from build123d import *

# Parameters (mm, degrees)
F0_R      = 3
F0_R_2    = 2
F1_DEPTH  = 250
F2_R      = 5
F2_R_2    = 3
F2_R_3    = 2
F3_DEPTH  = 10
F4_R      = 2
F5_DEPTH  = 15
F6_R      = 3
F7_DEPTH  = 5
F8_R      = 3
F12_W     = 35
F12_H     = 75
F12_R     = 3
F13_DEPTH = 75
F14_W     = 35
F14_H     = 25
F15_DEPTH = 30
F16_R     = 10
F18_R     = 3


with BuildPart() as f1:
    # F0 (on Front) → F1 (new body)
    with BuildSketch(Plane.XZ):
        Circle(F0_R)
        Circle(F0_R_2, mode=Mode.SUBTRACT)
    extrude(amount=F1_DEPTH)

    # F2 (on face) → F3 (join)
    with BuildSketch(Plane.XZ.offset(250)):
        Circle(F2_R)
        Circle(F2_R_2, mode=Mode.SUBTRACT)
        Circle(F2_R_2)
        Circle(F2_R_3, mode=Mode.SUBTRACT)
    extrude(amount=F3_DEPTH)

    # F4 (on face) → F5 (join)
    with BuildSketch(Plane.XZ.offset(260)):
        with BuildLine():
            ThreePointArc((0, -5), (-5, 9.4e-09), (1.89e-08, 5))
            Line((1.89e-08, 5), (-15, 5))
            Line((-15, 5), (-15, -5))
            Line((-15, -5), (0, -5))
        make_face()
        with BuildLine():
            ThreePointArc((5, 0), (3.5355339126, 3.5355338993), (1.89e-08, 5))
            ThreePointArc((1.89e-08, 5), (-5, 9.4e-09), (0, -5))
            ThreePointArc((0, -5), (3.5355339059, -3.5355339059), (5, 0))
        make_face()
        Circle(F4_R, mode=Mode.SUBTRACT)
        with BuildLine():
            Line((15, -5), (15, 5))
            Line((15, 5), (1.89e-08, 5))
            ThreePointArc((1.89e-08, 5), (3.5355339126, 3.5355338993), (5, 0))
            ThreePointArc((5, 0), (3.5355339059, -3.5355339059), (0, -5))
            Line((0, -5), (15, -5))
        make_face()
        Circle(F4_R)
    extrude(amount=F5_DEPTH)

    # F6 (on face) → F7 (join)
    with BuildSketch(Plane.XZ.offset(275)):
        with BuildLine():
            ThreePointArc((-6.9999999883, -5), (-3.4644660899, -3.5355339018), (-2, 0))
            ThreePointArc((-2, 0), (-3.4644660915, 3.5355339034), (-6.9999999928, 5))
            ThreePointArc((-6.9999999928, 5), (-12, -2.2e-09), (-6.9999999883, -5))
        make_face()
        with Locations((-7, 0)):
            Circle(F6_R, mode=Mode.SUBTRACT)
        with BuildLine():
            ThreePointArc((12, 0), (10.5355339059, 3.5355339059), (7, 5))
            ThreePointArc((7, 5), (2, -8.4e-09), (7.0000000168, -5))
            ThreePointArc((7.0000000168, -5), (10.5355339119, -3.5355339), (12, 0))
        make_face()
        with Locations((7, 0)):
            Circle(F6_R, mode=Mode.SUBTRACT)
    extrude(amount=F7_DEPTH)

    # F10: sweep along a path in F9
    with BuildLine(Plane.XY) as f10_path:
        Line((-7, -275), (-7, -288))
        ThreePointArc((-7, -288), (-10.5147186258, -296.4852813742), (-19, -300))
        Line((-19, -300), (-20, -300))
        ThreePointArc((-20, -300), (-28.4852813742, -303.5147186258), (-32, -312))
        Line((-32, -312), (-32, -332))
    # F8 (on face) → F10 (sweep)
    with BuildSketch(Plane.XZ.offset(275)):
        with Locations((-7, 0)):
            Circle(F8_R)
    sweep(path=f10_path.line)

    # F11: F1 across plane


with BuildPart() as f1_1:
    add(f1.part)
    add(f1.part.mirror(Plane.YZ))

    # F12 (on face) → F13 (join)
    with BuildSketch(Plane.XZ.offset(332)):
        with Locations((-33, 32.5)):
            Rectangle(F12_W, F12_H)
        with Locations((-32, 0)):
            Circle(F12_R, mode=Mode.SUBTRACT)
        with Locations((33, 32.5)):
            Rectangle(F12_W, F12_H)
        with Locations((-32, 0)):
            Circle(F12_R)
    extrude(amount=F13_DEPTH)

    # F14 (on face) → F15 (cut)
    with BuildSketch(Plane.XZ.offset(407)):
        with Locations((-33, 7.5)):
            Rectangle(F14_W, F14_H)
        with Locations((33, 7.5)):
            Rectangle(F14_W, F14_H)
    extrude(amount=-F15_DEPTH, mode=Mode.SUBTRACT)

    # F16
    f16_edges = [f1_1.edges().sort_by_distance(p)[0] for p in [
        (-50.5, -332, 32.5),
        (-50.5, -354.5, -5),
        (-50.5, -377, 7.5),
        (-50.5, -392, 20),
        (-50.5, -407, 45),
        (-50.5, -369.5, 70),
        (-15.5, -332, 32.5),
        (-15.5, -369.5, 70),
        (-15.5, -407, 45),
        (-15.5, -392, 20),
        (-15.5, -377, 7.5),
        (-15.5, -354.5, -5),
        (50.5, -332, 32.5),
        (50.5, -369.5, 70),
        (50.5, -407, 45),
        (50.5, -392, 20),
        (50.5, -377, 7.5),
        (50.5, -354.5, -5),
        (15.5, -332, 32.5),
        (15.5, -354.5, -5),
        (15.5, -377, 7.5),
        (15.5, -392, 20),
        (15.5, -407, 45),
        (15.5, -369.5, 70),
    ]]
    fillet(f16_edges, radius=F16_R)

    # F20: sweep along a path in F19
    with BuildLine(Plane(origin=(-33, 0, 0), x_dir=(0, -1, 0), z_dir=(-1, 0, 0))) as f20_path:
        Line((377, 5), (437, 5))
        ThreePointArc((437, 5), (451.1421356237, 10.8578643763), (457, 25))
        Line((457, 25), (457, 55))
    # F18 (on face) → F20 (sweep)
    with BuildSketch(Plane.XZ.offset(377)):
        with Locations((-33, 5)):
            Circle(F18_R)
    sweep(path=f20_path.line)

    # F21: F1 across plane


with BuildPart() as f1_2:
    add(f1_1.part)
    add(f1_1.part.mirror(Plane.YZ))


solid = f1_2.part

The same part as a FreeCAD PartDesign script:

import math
import FreeCAD as App
import Part
import Sketcher
from FreeCAD import Vector
Q = App.Units.Quantity


def edges_at(feature, points):
    """Names of the edges that pass closest to the given points."""
    edges = feature.Shape.Edges
    near = lambda p: min(range(len(edges)), key=lambda i: edges[i].distToShape(Part.Vertex(*p))[0])
    return sorted({f"Edge{near(p) + 1}" for p in points})


def add_polygon(sketch, points):
    """Adds a closed chain of lines whose ends are joined by coincident constraints."""
    first, n = sketch.GeometryCount, len(points)
    for a, b in zip(points, points[1:] + points[:1]):
        sketch.addGeometry(Part.LineSegment(App.Vector(*a, 0), App.Vector(*b, 0)), False)
    for i in range(n):
        sketch.addConstraint(Sketcher.Constraint("Coincident", first + i, 2, first + (i + 1) % n, 1))

doc = App.newDocument("Part")
params = doc.addObject("Spreadsheet::Sheet", "Params")
for row, (alias, value) in enumerate([
    ("sketch1_diameter", "6 mm"),
    ("sketch1_diameter2", "4 mm"),
    ("pad1_length", "250 mm"),
    ("sketch2_diameter", "10 mm"),
    ("sketch2_diameter2", "4 mm"),
    ("pad2_length", "10 mm"),
    ("sketch3_width", "30 mm"),
    ("sketch3_height", "10 mm"),
    ("pad3_length", "15 mm"),
    ("sketch4_diameter", "6 mm"),
    ("sketch4_radius", "5 mm"),
    ("pad4_length", "5 mm"),
    ("sketch5_diameter", "6 mm"),
    ("sketch6_radius", "12 mm"),
    ("sketch6_width", "1 mm"),
    ("sketch6_height", "13 mm"),
    ("sketch6_height2", "20 mm"),
    ("sketch7_width", "35 mm"),
    ("sketch7_height", "75 mm"),
    ("pad5_length", "75 mm"),
    ("sketch8_width", "35 mm"),
    ("sketch8_height", "25 mm"),
    ("pocket1_length", "30 mm"),
    ("fillet_radius", "10 mm"),
    ("sketch9_diameter", "6 mm"),
    ("sketch10_radius", "20 mm"),
    ("sketch10_width", "60 mm"),
    ("sketch10_height", "30 mm"),
], start=1):
    params.set(f"A{row}", alias)
    params.set(f"B{row}", "=" + value)
    params.setAlias(f"B{row}", alias)

body = doc.addObject("PartDesign::Body", "Body")

sketch1 = body.newObject("Sketcher::SketchObject", "Sketch")
sketch1.AttachmentSupport = (doc.getObject("XZ_Plane"), [""])
sketch1.MapMode = "FlatFace"
sketch1.addGeometry([
    Part.Circle(Vector(0, 0, 0), Vector(0, 0, 1), 3),
    Part.Circle(Vector(0, 0, 0), Vector(0, 0, 1), 2),
], False)
sketch1.addConstraint([
    Sketcher.Constraint("Coincident", 0, 3, -1, 1),
    Sketcher.Constraint("Coincident", 1, 3, -1, 1),
    Sketcher.Constraint("Diameter", 0, Q("6 mm")),
    Sketcher.Constraint("Diameter", 1, Q("4 mm")),
])
sketch1.setExpression("Constraints[2]", "Params.sketch1_diameter")
sketch1.setExpression("Constraints[3]", "Params.sketch1_diameter2")
pad1 = body.newObject("PartDesign::Pad", "Pad")
pad1.Profile = sketch1
pad1.setExpression("Length", "Params.pad1_length")

sketch2 = body.newObject("Sketcher::SketchObject", "Sketch001")
sketch2.AttachmentSupport = (doc.getObject("XZ_Plane"), [""])
sketch2.MapMode = "FlatFace"
sketch2.AttachmentOffset = App.Placement(Vector(0, 0, 250), App.Rotation())
sketch2.addGeometry([
    Part.Circle(Vector(0, 0, 0), Vector(0, 0, 1), 5),
    Part.Circle(Vector(0, 0, 0), Vector(0, 0, 1), 2),
], False)
sketch2.addConstraint([
    Sketcher.Constraint("Coincident", 0, 3, -1, 1),
    Sketcher.Constraint("Coincident", 1, 3, -1, 1),
    Sketcher.Constraint("Diameter", 0, Q("10 mm")),
    Sketcher.Constraint("Diameter", 1, Q("4 mm")),
])
sketch2.setExpression("Constraints[2]", "Params.sketch2_diameter")
sketch2.setExpression("Constraints[3]", "Params.sketch2_diameter2")
pad2 = body.newObject("PartDesign::Pad", "Pad001")
pad2.Profile = sketch2
pad2.setExpression("Length", "Params.pad2_length")

sketch3 = body.newObject("Sketcher::SketchObject", "Sketch002")
sketch3.AttachmentSupport = (doc.getObject("XZ_Plane"), [""])
sketch3.MapMode = "FlatFace"
sketch3.AttachmentOffset = App.Placement(Vector(0, 0, 260), App.Rotation())
add_polygon(sketch3, [(-15, 5), (-15, -5), (15, -5), (15, 5)])
sketch3.addConstraint([
    Sketcher.Constraint("Vertical", 0),
    Sketcher.Constraint("Horizontal", 1),
    Sketcher.Constraint("Vertical", 2),
    Sketcher.Constraint("Horizontal", 3),
    Sketcher.Constraint("Symmetric", 0, 2, 2, 2, -1, 1),
    Sketcher.Constraint("DistanceX", 1, 1, 1, 2, Q("30 mm")),
    Sketcher.Constraint("DistanceY", 0, 2, 0, 1, Q("10 mm")),
])
sketch3.setExpression("Constraints[9]", "Params.sketch3_width")
sketch3.setExpression("Constraints[10]", "Params.sketch3_height")
pad3 = body.newObject("PartDesign::Pad", "Pad002")
pad3.Profile = sketch3
pad3.setExpression("Length", "Params.pad3_length")

sketch4 = body.newObject("Sketcher::SketchObject", "Sketch003")
sketch4.AttachmentSupport = (doc.getObject("XZ_Plane"), [""])
sketch4.MapMode = "FlatFace"
sketch4.AttachmentOffset = App.Placement(Vector(0, 0, 275), App.Rotation())
sketch4.addGeometry([
    Part.ArcOfCircle(Part.Circle(Vector(-7, 0, 0), Vector(0, 0, 1), 5), math.radians(-90), math.radians(0)),
    Part.ArcOfCircle(Part.Circle(Vector(-7, 0, 0), Vector(0, 0, 1), 5), math.radians(0), math.radians(90)),
    Part.ArcOfCircle(Part.Circle(Vector(-7, 0, 0), Vector(0, 0, 1), 5), math.radians(90), math.radians(270)),
    Part.Circle(Vector(-7, 0, 0), Vector(0, 0, 1), 3),
    Part.ArcOfCircle(Part.Circle(Vector(7, 0, 0), Vector(0, 0, 1), 5), math.radians(0), math.radians(90)),
    Part.ArcOfCircle(Part.Circle(Vector(7, 0, 0), Vector(0, 0, 1), 5), math.radians(90), math.radians(270)),
    Part.ArcOfCircle(Part.Circle(Vector(7, 0, 0), Vector(0, 0, 1), 5), math.radians(-90), math.radians(0)),
    Part.Circle(Vector(7, 0, 0), Vector(0, 0, 1), 3),
], False)
sketch4.addConstraint([
    Sketcher.Constraint("Tangent", 0, 2, 1, 1),
    Sketcher.Constraint("Tangent", 1, 2, 2, 1),
    Sketcher.Constraint("Tangent", 2, 2, 0, 1),
    Sketcher.Constraint("Tangent", 4, 2, 5, 1),
    Sketcher.Constraint("Tangent", 5, 2, 6, 1),
    Sketcher.Constraint("Tangent", 6, 2, 4, 1),
    Sketcher.Constraint("Coincident", 3, 3, 0, 3),
    Sketcher.Constraint("Coincident", 7, 3, 4, 3),
    Sketcher.Constraint("Equal", 2, 4),
    Sketcher.Constraint("Equal", 3, 7),
    Sketcher.Constraint("Symmetric", 0, 3, 4, 3, -1, 1),
    Sketcher.Constraint("Symmetric", 1, 2, 4, 2, -2),
    Sketcher.Constraint("PointOnObject", 0, 2, -1),
    Sketcher.Constraint("PointOnObject", 6, 2, -1),
    Sketcher.Constraint("Vertical", 3, 3, 1, 2),
    Sketcher.Constraint("Vertical", 1, 2, 2, 2),
    Sketcher.Constraint("Vertical", 4, 2, 5, 2),
    Sketcher.Constraint("Diameter", 3, Q("6 mm")),
    Sketcher.Constraint("Radius", 0, Q("5 mm")),
    Sketcher.Constraint("DistanceX", 0, 3, -1, 1, Q("7 mm")),
])
sketch4.setExpression("Constraints[17]", "Params.sketch4_diameter")
sketch4.setExpression("Constraints[18]", "Params.sketch4_radius")
pad4 = body.newObject("PartDesign::Pad", "Pad003")
pad4.Profile = sketch4
pad4.setExpression("Length", "Params.pad4_length")

sketch5 = body.newObject("Sketcher::SketchObject", "Sketch004")
sketch5.AttachmentSupport = (doc.getObject("XZ_Plane"), [""])
sketch5.MapMode = "FlatFace"
sketch5.AttachmentOffset = App.Placement(Vector(0, 0, 275), App.Rotation())
sketch5.addGeometry(Part.Circle(Vector(-7, 0, 0), Vector(0, 0, 1), 3), False)
sketch5.addConstraint([
    Sketcher.Constraint("PointOnObject", 0, 3, -1),
    Sketcher.Constraint("Diameter", 0, Q("6 mm")),
    Sketcher.Constraint("DistanceX", 0, 3, -1, 1, Q("7 mm")),
])
sketch5.setExpression("Constraints[1]", "Params.sketch5_diameter")

sketch6 = body.newObject("Sketcher::SketchObject", "Sketch005")
sketch6.AttachmentSupport = (doc.getObject("XY_Plane"), [""])
sketch6.MapMode = "FlatFace"
sketch6.addGeometry([
    Part.LineSegment(Vector(-7, -275, 0), Vector(-7, -288, 0)),
    Part.ArcOfCircle(Part.Circle(Vector(-19, -288, 0), Vector(0, 0, 1), 12), math.radians(-90), math.radians(0)),
    Part.LineSegment(Vector(-19, -300, 0), Vector(-20, -300, 0)),
    Part.ArcOfCircle(Part.Circle(Vector(-20, -312, 0), Vector(0, 0, 1), 12), math.radians(90), math.radians(180)),
    Part.LineSegment(Vector(-32, -312, 0), Vector(-32, -332, 0)),
], False)
sketch6.addConstraint([
    Sketcher.Constraint("Tangent", 0, 2, 1, 2),
    Sketcher.Constraint("Tangent", 1, 1, 2, 1),
    Sketcher.Constraint("Tangent", 2, 2, 3, 1),
    Sketcher.Constraint("Tangent", 3, 2, 4, 1),
    Sketcher.Constraint("Vertical", 0),
    Sketcher.Constraint("Horizontal", 2),
    Sketcher.Constraint("Vertical", 4),
    Sketcher.Constraint("Equal", 1, 3),
    Sketcher.Constraint("Radius", 1, Q("12 mm")),
    Sketcher.Constraint("DistanceX", 2, 2, 2, 1, Q("1 mm")),
    Sketcher.Constraint("DistanceY", 0, 2, 0, 1, Q("13 mm")),
    Sketcher.Constraint("DistanceY", 4, 2, 4, 1, Q("20 mm")),
    Sketcher.Constraint("DistanceX", 1, 3, -1, 1, Q("19 mm")),
    Sketcher.Constraint("DistanceY", 1, 3, -1, 1, Q("288 mm")),
])
sketch6.setExpression("Constraints[8]", "Params.sketch6_radius")
sketch6.setExpression("Constraints[9]", "Params.sketch6_width")
sketch6.setExpression("Constraints[10]", "Params.sketch6_height")
sketch6.setExpression("Constraints[11]", "Params.sketch6_height2")
doc.recompute()

additivepipe = body.newObject("PartDesign::AdditivePipe", "AdditivePipe")
additivepipe.Profile = sketch5
additivepipe.Spine = (sketch6, ["Edge1", "Edge2", "Edge3", "Edge4", "Edge5"])
body2 = doc.addObject("PartDesign::Body", "Body001")
doc.recompute()

body2.BaseFeature = body
doc.recompute()

mirroring = doc.addObject("Part::Mirroring", "Mirroring")
mirroring.Source = body
mirroring.Base = Vector(0, 0, 0)
mirroring.Normal = Vector(1, 0, 0)
body3 = doc.addObject("PartDesign::Body", "Body002")
body3.BaseFeature = mirroring
boolean = body2.newObject("PartDesign::Boolean", "Boolean")
boolean.Type = "Fuse"
boolean.addObjects([body3])
doc.recompute()

sketch7 = body2.newObject("Sketcher::SketchObject", "Sketch006")
sketch7.AttachmentSupport = (doc.getObject("XZ_Plane001"), [""])
sketch7.MapMode = "FlatFace"
sketch7.AttachmentOffset = App.Placement(Vector(0, 0, 332), App.Rotation())
add_polygon(sketch7, [(-50, 70), (-50, -5), (-16, -5), (-16, 70)])
add_polygon(sketch7, [(16, 70), (16, -5), (50, -5), (50, 70)])
sketch7.addConstraint([
    Sketcher.Constraint("Vertical", 0),
    Sketcher.Constraint("Horizontal", 1),
    Sketcher.Constraint("Vertical", 2),
    Sketcher.Constraint("Horizontal", 3),
    Sketcher.Constraint("Vertical", 4),
    Sketcher.Constraint("Horizontal", 5),
    Sketcher.Constraint("Vertical", 6),
    Sketcher.Constraint("Horizontal", 7),
    Sketcher.Constraint("Symmetric", 1, 2, 4, 2, -2),
    Sketcher.Constraint("Symmetric", 3, 2, 6, 2, -2),
    Sketcher.Constraint("DistanceX", 1, 1, 1, 2, Q("35 mm")),
    Sketcher.Constraint("DistanceY", 0, 2, 0, 1, Q("75 mm")),
    Sketcher.Constraint("DistanceY", 0, 2, -1, 1, Q("5 mm")),
    Sketcher.Constraint("DistanceX", 1, 2, 4, 2, Q("31 mm")),
])
sketch7.setExpression("Constraints[18]", "Params.sketch7_width")
sketch7.setExpression("Constraints[19]", "Params.sketch7_height")
pad5 = body2.newObject("PartDesign::Pad", "Pad004")
pad5.Profile = sketch7
pad5.setExpression("Length", "Params.pad5_length")

sketch8 = body2.newObject("Sketcher::SketchObject", "Sketch007")
sketch8.AttachmentSupport = (doc.getObject("XZ_Plane001"), [""])
sketch8.MapMode = "FlatFace"
sketch8.AttachmentOffset = App.Placement(Vector(0, 0, 407), App.Rotation())
add_polygon(sketch8, [(-50, 20), (-50, -5), (-16, -5), (-16, 20)])
add_polygon(sketch8, [(16, 20), (16, -5), (50, -5), (50, 20)])
sketch8.addConstraint([
    Sketcher.Constraint("Vertical", 0),
    Sketcher.Constraint("Horizontal", 1),
    Sketcher.Constraint("Vertical", 2),
    Sketcher.Constraint("Horizontal", 3),
    Sketcher.Constraint("Vertical", 4),
    Sketcher.Constraint("Horizontal", 5),
    Sketcher.Constraint("Vertical", 6),
    Sketcher.Constraint("Horizontal", 7),
    Sketcher.Constraint("Symmetric", 1, 2, 4, 2, -2),
    Sketcher.Constraint("Symmetric", 3, 2, 6, 2, -2),
    Sketcher.Constraint("DistanceX", 1, 1, 1, 2, Q("35 mm")),
    Sketcher.Constraint("DistanceY", 0, 2, 0, 1, Q("25 mm")),
    Sketcher.Constraint("DistanceY", 0, 2, -1, 1, Q("5 mm")),
    Sketcher.Constraint("DistanceX", 1, 2, 4, 2, Q("31 mm")),
])
sketch8.setExpression("Constraints[18]", "Params.sketch8_width")
sketch8.setExpression("Constraints[19]", "Params.sketch8_height")
pocket1 = body2.newObject("PartDesign::Pocket", "Pocket")
pocket1.Profile = sketch8
pocket1.setExpression("Length", "Params.pocket1_length")
doc.recompute()

fillet = body2.newObject("PartDesign::Fillet", "Fillet")
fillet.Base = (pocket1, edges_at(pocket1, [
    (-50.5, -332, 32.5),
    (-50.5, -354.5, -5),
    (-50.5, -377, 7.5),
    (-50.5, -392, 20),
    (-50.5, -407, 45),
    (-50.5, -369.5, 70),
    (-15.5, -332, 32.5),
    (-15.5, -369.5, 70),
    (-15.5, -407, 45),
    (-15.5, -392, 20),
    (-15.5, -377, 7.5),
    (-15.5, -354.5, -5),
    (50.5, -332, 32.5),
    (50.5, -369.5, 70),
    (50.5, -407, 45),
    (50.5, -392, 20),
    (50.5, -377, 7.5),
    (50.5, -354.5, -5),
    (15.5, -332, 32.5),
    (15.5, -354.5, -5),
    (15.5, -377, 7.5),
    (15.5, -392, 20),
    (15.5, -407, 45),
    (15.5, -369.5, 70),
]))
fillet.setExpression("Radius", "Params.fillet_radius")

sketch9 = body2.newObject("Sketcher::SketchObject", "Sketch008")
sketch9.AttachmentSupport = (doc.getObject("XZ_Plane001"), [""])
sketch9.MapMode = "FlatFace"
sketch9.AttachmentOffset = App.Placement(Vector(0, 0, 377), App.Rotation())
sketch9.addGeometry(Part.Circle(Vector(-33, 5, 0), Vector(0, 0, 1), 3), False)
sketch9.addConstraint([
    Sketcher.Constraint("Diameter", 0, Q("6 mm")),
    Sketcher.Constraint("DistanceX", 0, 3, -1, 1, Q("33 mm")),
    Sketcher.Constraint("DistanceY", -1, 1, 0, 3, Q("5 mm")),
])
sketch9.setExpression("Constraints[0]", "Params.sketch9_diameter")

sketch10 = body2.newObject("Sketcher::SketchObject", "Sketch009")
sketch10.AttachmentSupport = (doc.getObject("YZ_Plane001"), [""])
sketch10.MapMode = "FlatFace"
sketch10.AttachmentOffset = App.Placement(Vector(0, 0, -33), App.Rotation())
sketch10.addGeometry([
    Part.LineSegment(Vector(-377, 5, 0), Vector(-437, 5, 0)),
    Part.ArcOfCircle(Part.Circle(Vector(-437, 25, 0), Vector(0, 0, 1), 20), math.radians(180), math.radians(270)),
    Part.LineSegment(Vector(-457, 25, 0), Vector(-457, 55, 0)),
], False)
sketch10.addConstraint([
    Sketcher.Constraint("Tangent", 0, 2, 1, 2),
    Sketcher.Constraint("Tangent", 1, 1, 2, 1),
    Sketcher.Constraint("Horizontal", 0),
    Sketcher.Constraint("Vertical", 2),
    Sketcher.Constraint("Radius", 1, Q("20 mm")),
    Sketcher.Constraint("DistanceX", 0, 2, 0, 1, Q("60 mm")),
    Sketcher.Constraint("DistanceY", 2, 1, 2, 2, Q("30 mm")),
    Sketcher.Constraint("DistanceX", 1, 3, -1, 1, Q("437 mm")),
    Sketcher.Constraint("DistanceY", -1, 1, 1, 3, Q("25 mm")),
])
sketch10.setExpression("Constraints[4]", "Params.sketch10_radius")
sketch10.setExpression("Constraints[5]", "Params.sketch10_width")
sketch10.setExpression("Constraints[6]", "Params.sketch10_height")
doc.recompute()

additivepipe2 = body2.newObject("PartDesign::AdditivePipe", "AdditivePipe001")
additivepipe2.Profile = sketch9
additivepipe2.Spine = (sketch10, ["Edge1", "Edge2", "Edge3"])
body4 = doc.addObject("PartDesign::Body", "Body003")
doc.recompute()

body4.BaseFeature = body2
doc.recompute()

mirroring2 = doc.addObject("Part::Mirroring", "Mirroring001")
mirroring2.Source = body2
mirroring2.Base = Vector(0, 0, 0)
mirroring2.Normal = Vector(1, 0, 0)
body5 = doc.addObject("PartDesign::Body", "Body004")
body5.BaseFeature = mirroring2
boolean2 = body4.newObject("PartDesign::Boolean", "Boolean001")
boolean2.Type = "Fuse"
boolean2.addObjects([body5])
doc.recompute()
mirroring.Visibility = False
mirroring2.Visibility = False

doc.recompute()
